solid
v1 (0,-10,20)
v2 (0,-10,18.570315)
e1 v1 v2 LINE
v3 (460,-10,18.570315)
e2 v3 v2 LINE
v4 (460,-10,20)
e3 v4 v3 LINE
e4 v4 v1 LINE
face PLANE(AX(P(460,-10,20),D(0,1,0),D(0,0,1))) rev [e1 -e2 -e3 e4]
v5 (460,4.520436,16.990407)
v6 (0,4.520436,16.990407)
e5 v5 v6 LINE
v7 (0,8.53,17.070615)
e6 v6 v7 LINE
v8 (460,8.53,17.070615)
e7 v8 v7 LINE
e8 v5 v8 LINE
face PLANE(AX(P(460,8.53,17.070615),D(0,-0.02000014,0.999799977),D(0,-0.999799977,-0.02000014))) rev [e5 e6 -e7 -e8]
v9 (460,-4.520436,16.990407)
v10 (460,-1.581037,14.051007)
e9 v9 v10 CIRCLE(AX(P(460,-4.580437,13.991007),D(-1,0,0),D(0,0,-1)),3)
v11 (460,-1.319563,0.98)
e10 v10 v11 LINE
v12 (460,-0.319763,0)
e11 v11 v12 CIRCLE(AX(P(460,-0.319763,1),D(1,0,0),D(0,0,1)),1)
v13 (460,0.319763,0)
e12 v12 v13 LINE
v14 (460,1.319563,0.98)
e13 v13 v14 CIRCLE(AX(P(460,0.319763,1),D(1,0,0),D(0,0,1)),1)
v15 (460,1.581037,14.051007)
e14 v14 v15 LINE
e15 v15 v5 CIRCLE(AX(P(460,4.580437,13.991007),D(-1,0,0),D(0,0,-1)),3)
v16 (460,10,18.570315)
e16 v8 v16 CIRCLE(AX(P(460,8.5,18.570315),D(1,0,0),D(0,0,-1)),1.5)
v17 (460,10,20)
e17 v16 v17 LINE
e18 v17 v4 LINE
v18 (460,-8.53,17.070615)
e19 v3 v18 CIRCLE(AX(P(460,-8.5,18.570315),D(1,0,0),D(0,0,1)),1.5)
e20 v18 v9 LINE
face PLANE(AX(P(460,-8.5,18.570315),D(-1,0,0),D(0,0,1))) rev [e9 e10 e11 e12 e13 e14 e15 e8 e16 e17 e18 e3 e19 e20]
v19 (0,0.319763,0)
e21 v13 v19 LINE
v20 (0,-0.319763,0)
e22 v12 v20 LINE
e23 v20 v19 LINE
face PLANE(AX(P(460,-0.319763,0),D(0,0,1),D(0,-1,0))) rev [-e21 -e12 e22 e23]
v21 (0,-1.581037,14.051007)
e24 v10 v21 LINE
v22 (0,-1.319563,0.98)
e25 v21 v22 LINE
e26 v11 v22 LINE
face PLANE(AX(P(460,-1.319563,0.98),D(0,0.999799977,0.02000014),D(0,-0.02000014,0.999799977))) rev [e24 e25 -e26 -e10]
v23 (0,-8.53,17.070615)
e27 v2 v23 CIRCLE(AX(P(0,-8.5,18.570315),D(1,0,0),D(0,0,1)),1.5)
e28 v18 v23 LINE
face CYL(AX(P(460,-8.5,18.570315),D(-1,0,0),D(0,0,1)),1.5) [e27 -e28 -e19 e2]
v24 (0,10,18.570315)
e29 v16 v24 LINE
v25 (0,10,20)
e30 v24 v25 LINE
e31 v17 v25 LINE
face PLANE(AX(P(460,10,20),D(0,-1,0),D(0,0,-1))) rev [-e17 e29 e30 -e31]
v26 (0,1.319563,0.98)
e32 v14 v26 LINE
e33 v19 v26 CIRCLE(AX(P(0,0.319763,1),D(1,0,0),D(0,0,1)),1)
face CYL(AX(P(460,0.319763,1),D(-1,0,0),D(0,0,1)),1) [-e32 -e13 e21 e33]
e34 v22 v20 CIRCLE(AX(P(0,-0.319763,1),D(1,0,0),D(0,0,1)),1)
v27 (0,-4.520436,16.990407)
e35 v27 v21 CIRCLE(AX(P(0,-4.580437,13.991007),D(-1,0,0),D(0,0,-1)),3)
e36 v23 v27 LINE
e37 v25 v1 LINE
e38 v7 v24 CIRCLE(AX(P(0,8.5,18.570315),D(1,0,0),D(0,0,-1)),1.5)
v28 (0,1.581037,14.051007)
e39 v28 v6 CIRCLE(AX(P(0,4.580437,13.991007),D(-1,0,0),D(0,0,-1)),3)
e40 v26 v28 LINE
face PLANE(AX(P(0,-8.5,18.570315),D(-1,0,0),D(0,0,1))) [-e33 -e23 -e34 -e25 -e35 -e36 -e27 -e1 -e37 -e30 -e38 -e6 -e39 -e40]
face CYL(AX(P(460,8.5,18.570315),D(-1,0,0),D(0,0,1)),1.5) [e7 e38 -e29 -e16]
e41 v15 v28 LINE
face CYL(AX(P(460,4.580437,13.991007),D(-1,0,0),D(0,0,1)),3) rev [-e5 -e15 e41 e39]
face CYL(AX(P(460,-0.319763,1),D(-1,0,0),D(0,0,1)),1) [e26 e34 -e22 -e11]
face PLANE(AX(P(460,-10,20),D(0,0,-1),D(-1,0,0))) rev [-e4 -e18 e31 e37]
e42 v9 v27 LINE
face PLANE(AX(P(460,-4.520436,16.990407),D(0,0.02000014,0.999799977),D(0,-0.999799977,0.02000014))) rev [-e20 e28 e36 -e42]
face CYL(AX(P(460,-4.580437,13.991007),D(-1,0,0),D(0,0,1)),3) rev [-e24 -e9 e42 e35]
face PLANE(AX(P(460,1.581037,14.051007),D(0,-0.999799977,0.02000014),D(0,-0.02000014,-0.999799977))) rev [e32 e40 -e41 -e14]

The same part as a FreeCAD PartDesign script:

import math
import FreeCAD as App
import Part
import Sketcher

V = App.Vector

doc = App.newDocument("Part")
params = doc.addObject("Spreadsheet::Sheet", "Params")
for row, (alias, value) in enumerate([
    ("sketch1_radius", "3 mm"),
    ("sketch1_radius2", "1 mm"),
    ("sketch1_radius3", "1 mm"),
    ("sketch1_radius4", "3 mm"),
    ("sketch1_radius5", "1.5 mm"),
    ("pad1_length", "460 mm"),
], start=1):
    params.set(f"A{row}", alias)
    params.set(f"B{row}", "=" + value)
    params.setAlias(f"B{row}", alias)

body = doc.addObject("PartDesign::Body", "Body")

# Sketch on YZ plane
sketch1 = body.newObject("Sketcher::SketchObject", "Sketch")
sketch1.AttachmentSupport = (doc.getObject("YZ_Plane"), [""])
sketch1.MapMode = "FlatFace"
sketch1.addGeometry([
    Part.LineSegment(V(10, 20, 0), V(-10, 20, 0)),  # 0
    Part.LineSegment(V(-10, 20, 0), V(-10, 18.570315, 0)),  # 1
    Part.ArcOfCircle(Part.Circle(V(-8.5, 18.570315, 0), V(0, 0, 1), 1.5), math.radians(180), math.radians(268.854)),  # 2
    Part.LineSegment(V(-8.53, 17.070615, 0), V(-4.520436, 16.990407, 0)),  # 3
    Part.ArcOfCircle(Part.Circle(V(-4.580437, 13.991007, 0), V(0, 0, 1), 3), math.radians(1.146), math.radians(88.854)),  # 4
    Part.LineSegment(V(-1.581037, 14.051007, 0), V(-1.319563, 0.98, 0)),  # 5
    Part.ArcOfCircle(Part.Circle(V(-0.319763, 1, 0), V(0, 0, 1), 1), math.radians(-178.854), math.radians(-90)),  # 6
    Part.LineSegment(V(-0.319763, 0, 0), V(0.319763, 0, 0)),  # 7
    Part.ArcOfCircle(Part.Circle(V(0.319763, 1, 0), V(0, 0, 1), 1), math.radians(-90), math.radians(-1.146)),  # 8
    Part.LineSegment(V(1.319563, 0.98, 0), V(1.581037, 14.051007, 0)),  # 9
    Part.ArcOfCircle(Part.Circle(V(4.580437, 13.991007, 0), V(0, 0, 1), 3), math.radians(91.146), math.radians(178.854)),  # 10
    Part.LineSegment(V(4.520436, 16.990407, 0), V(8.53, 17.070615, 0)),  # 11
    Part.ArcOfCircle(Part.Circle(V(8.5, 18.570315, 0), V(0, 0, 1), 1.5), math.radians(-88.854), math.radians(0)),  # 12
    Part.LineSegment(V(10, 18.570315, 0), V(10, 20, 0)),  # 13
], False)
sketch1.addConstraint([
    Sketcher.Constraint("Coincident", 0, 2, 1, 1),
    Sketcher.Constraint("Coincident", 1, 2, 2, 1),
    Sketcher.Constraint("Coincident", 2, 2, 3, 1),
    Sketcher.Constraint("Coincident", 3, 2, 4, 2),
    Sketcher.Constraint("Coincident", 4, 1, 5, 1),
    Sketcher.Constraint("Coincident", 5, 2, 6, 1),
    Sketcher.Constraint("Coincident", 6, 2, 7, 1),
    Sketcher.Constraint("Coincident", 7, 2, 8, 1),
    Sketcher.Constraint("Coincident", 8, 2, 9, 1),
    Sketcher.Constraint("Coincident", 9, 2, 10, 2),
    Sketcher.Constraint("Coincident", 10, 1, 11, 1),
    Sketcher.Constraint("Coincident", 11, 2, 12, 1),
    Sketcher.Constraint("Coincident", 12, 2, 13, 1),
    Sketcher.Constraint("Coincident", 13, 2, 0, 1),
    Sketcher.Constraint("Horizontal", 0),
    Sketcher.Constraint("Vertical", 1),
    Sketcher.Constraint("Horizontal", 7),
    Sketcher.Constraint("Vertical", 13),
    Sketcher.Constraint("PointOnObject", 6, 2, -1),
    Sketcher.Constraint("Radius", 4, 3.0),
    Sketcher.Constraint("Radius", 6, 1.0),
    Sketcher.Constraint("Radius", 8, 1.0),
    Sketcher.Constraint("Radius", 10, 3.0),
    Sketcher.Constraint("Radius", 2, 1.5),
    Sketcher.Constraint("Radius", 12, 1.5),
    Sketcher.Constraint("DistanceX", 0, 2, 0, 1, 20.0),
    Sketcher.Constraint("DistanceX", 0, 2, -1, 1, 10.0),
    Sketcher.Constraint("DistanceY", -1, 1, 0, 2, 20.0),
    Sketcher.Constraint("DistanceX", 5, 2, 10, 3, 5.899999),
    Sketcher.Constraint("DistanceX", 2, 2, -1, 1, 8.53),
    Sketcher.Constraint("DistanceY", -1, 1, 5, 2, 0.98),
    Sketcher.Constraint("DistanceY", -1, 1, 8, 2, 0.98),
    Sketcher.Constraint("DistanceX", -1, 1, 11, 2, 8.53),
    Sketcher.Constraint("DistanceX", 4, 3, 3, 2, 0.06),
    Sketcher.Constraint("DistanceY", 4, 3, 4, 1, 0.06),
    Sketcher.Constraint("DistanceY", 10, 3, 4, 1, 0.06),
    Sketcher.Constraint("DistanceY", 10, 3, 9, 2, 0.06),
    Sketcher.Constraint("DistanceX", 10, 1, 10, 3, 0.06),
    Sketcher.Constraint("DistanceX", 4, 3, 8, 3, 4.9002),
    Sketcher.Constraint("DistanceY", 2, 2, 1, 2, 1.4997),
    Sketcher.Constraint("DistanceX", 5, 2, 6, 2, 0.9998),
    Sketcher.Constraint("DistanceX", 4, 1, 7, 2, 1.9008),
    Sketcher.Constraint("DistanceY", 11, 2, 12, 2, 1.4997),
    Sketcher.Constraint("DistanceX", 7, 1, 7, 2, 0.639525),
    Sketcher.Constraint("DistanceY", 1, 2, 1, 1, 1.429685),
    Sketcher.Constraint("DistanceY", 13, 1, 13, 2, 1.429685),
    Sketcher.Constraint("Distance", 3, 4.010366),
    Sketcher.Constraint("Distance", 5, 13.073622),
])
sketch1.setExpression("Constraints[19]", "Params.sketch1_radius")
sketch1.setExpression("Constraints[20]", "Params.sketch1_radius2")
sketch1.setExpression("Constraints[21]", "Params.sketch1_radius3")
sketch1.setExpression("Constraints[22]", "Params.sketch1_radius4")
sketch1.setExpression("Constraints[23]", "Params.sketch1_radius5")
pad1 = body.newObject("PartDesign::Pad", "Pad")
pad1.Profile = sketch1
pad1.setExpression("Length", "Params.pad1_length")

doc.recompute()
